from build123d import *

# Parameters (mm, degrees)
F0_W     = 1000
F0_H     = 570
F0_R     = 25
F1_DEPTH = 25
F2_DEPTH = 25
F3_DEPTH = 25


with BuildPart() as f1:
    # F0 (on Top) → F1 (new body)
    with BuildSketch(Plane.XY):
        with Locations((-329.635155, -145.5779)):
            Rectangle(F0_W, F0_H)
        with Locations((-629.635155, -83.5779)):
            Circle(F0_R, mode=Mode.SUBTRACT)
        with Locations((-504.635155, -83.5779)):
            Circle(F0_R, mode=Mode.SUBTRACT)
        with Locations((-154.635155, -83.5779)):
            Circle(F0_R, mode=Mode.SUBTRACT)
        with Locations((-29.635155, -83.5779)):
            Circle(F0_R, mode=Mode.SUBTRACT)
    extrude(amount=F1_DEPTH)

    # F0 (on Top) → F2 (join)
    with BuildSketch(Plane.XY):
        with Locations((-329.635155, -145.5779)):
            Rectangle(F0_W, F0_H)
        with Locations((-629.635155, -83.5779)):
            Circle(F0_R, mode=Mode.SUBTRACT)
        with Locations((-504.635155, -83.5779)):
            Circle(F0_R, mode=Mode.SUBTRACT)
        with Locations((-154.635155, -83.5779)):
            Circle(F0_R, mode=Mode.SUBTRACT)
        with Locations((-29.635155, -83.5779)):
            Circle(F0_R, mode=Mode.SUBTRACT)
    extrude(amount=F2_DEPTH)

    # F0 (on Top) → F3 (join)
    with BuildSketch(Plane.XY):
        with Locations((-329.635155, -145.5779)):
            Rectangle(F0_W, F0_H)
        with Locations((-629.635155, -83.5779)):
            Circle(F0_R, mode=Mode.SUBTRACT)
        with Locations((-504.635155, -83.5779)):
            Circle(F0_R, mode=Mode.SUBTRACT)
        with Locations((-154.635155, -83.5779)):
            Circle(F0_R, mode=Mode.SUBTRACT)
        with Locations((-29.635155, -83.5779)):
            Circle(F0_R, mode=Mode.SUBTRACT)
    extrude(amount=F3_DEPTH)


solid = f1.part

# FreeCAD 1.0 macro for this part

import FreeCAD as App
import Part
import Sketcher

V = App.Vector
Q = App.Units.Quantity


def add_polygon(sketch, points):
    """Adds a closed chain of lines whose ends are joined by coincident constraints."""
    first, n = sketch.GeometryCount, len(points)
    for a, b in zip(points, points[1:] + points[:1]):
        sketch.addGeometry(Part.LineSegment(App.Vector(*a, 0), App.Vector(*b, 0)), False)
    for i in range(n):
        sketch.addConstraint(Sketcher.Constraint("Coincident", first + i, 2, first + (i + 1) % n, 1))

doc = App.newDocument("Part")
params = doc.addObject("Spreadsheet::Sheet", "Params")
for row, (alias, value) in enumerate([
    ("sketch1_diameter", "50 mm"),
    ("sketch1_width", "1000 mm"),
    ("sketch1_height", "570 mm"),
    ("pad1_length", "25 mm"),
    ("sketch2_diameter", "50 mm"),
    ("sketch2_width", "1000 mm"),
    ("sketch2_height", "570 mm"),
    ("pad2_length", "25 mm"),
    ("sketch3_diameter", "50 mm"),
    ("sketch3_width", "1000 mm"),
    ("sketch3_height", "570 mm"),
    ("pad3_length", "25 mm"),
], start=1):
    params.set(f"A{row}", alias)
    params.set(f"B{row}", "=" + value)
    params.setAlias(f"B{row}", alias)

body = doc.addObject("PartDesign::Body", "Body")

sketch1 = body.newObject("Sketcher::SketchObject", "Sketch")
sketch1.AttachmentSupport = (doc.getObject("XY_Plane"), [""])
sketch1.MapMode = "FlatFace"
add_polygon(sketch1, [(-829.635155, 139.4221), (-829.635155, -430.5779), (170.364845, -430.5779), (170.364845, 139.4221)])
sketch1.addGeometry(Part.Circle(V(-629.635155, -83.5779, 0), V(0, 0, 1), 25), False)
sketch1.addGeometry(Part.Circle(V(-504.635155, -83.5779, 0), V(0, 0, 1), 25), False)
sketch1.addGeometry(Part.Circle(V(-154.635155, -83.5779, 0), V(0, 0, 1), 25), False)
sketch1.addGeometry(Part.Circle(V(-29.635155, -83.5779, 0), V(0, 0, 1), 25), False)
sketch1.addConstraint([
    Sketcher.Constraint("Vertical", 0),
    Sketcher.Constraint("Horizontal", 1),
    Sketcher.Constraint("Vertical", 2),
    Sketcher.Constraint("Horizontal", 3),
    Sketcher.Constraint("Equal", 4, 5),
    Sketcher.Constraint("Equal", 5, 6),
    Sketcher.Constraint("Equal", 6, 7),
    Sketcher.Constraint("Horizontal", 4, 3, 5, 3),
    Sketcher.Constraint("Horizontal", 5, 3, 6, 3),
    Sketcher.Constraint("Horizontal", 6, 3, 7, 3),
    Sketcher.Constraint("Diameter", 4, Q("50 mm")),
    Sketcher.Constraint("DistanceX", 1, 1, 1, 2, Q("1000 mm")),
    Sketcher.Constraint("DistanceY", 0, 2, 0, 1, Q("570 mm")),
    Sketcher.Constraint("DistanceX", 4, 3, 5, 3, Q("125 mm")),
    Sketcher.Constraint("DistanceX", 5, 3, 6, 3, Q("350 mm")),
    Sketcher.Constraint("DistanceX", 6, 3, 7, 3, Q("125 mm")),
    Sketcher.Constraint("DistanceX", 0, 2, 4, 3, Q("200 mm")),
    Sketcher.Constraint("DistanceY", 0, 2, 4, 3, Q("347 mm")),
    Sketcher.Constraint("DistanceY", 4, 3, -1, 1, Q("83.5779 mm")),
    Sketcher.Constraint("DistanceX", 4, 3, -1, 1, Q("629.635155 mm")),
])
sketch1.setExpression("Constraints[14]", "Params.sketch1_diameter")
sketch1.setExpression("Constraints[15]", "Params.sketch1_width")
sketch1.setExpression("Constraints[16]", "Params.sketch1_height")
pad1 = body.newObject("PartDesign::Pad", "Pad")
pad1.Profile = sketch1
pad1.setExpression("Length", "Params.pad1_length")

sketch2 = body.newObject("Sketcher::SketchObject", "Sketch001")
sketch2.AttachmentSupport = (doc.getObject("XY_Plane"), [""])
sketch2.MapMode = "FlatFace"
add_polygon(sketch2, [(-829.635155, 139.4221), (-829.635155, -430.5779), (170.364845, -430.5779), (170.364845, 139.4221)])
sketch2.addGeometry(Part.Circle(V(-629.635155, -83.5779, 0), V(0, 0, 1), 25), False)
sketch2.addGeometry(Part.Circle(V(-504.635155, -83.5779, 0), V(0, 0, 1), 25), False)
sketch2.addGeometry(Part.Circle(V(-154.635155, -83.5779, 0), V(0, 0, 1), 25), False)
sketch2.addGeometry(Part.Circle(V(-29.635155, -83.5779, 0), V(0, 0, 1), 25), False)
sketch2.addConstraint([
    Sketcher.Constraint("Vertical", 0),
    Sketcher.Constraint("Horizontal", 1),
    Sketcher.Constraint("Vertical", 2),
    Sketcher.Constraint("Horizontal", 3),
    Sketcher.Constraint("Equal", 4, 5),
    Sketcher.Constraint("Equal", 5, 6),
    Sketcher.Constraint("Equal", 6, 7),
    Sketcher.Constraint("Horizontal", 4, 3, 5, 3),
    Sketcher.Constraint("Horizontal", 5, 3, 6, 3),
    Sketcher.Constraint("Horizontal", 6, 3, 7, 3),
    Sketcher.Constraint("Diameter", 4, Q("50 mm")),
    Sketcher.Constraint("DistanceX", 1, 1, 1, 2, Q("1000 mm")),
    Sketcher.Constraint("DistanceY", 0, 2, 0, 1, Q("570 mm")),
    Sketcher.Constraint("DistanceX", 4, 3, 5, 3, Q("125 mm")),
    Sketcher.Constraint("DistanceX", 5, 3, 6, 3, Q("350 mm")),
    Sketcher.Constraint("DistanceX", 6, 3, 7, 3, Q("125 mm")),
    Sketcher.Constraint("DistanceX", 0, 2, 4, 3, Q("200 mm")),
    Sketcher.Constraint("DistanceY", 0, 2, 4, 3, Q("347 mm")),
    Sketcher.Constraint("DistanceY", 4, 3, -1, 1, Q("83.5779 mm")),
    Sketcher.Constraint("DistanceX", 4, 3, -1, 1, Q("629.635155 mm")),
])
sketch2.setExpression("Constraints[14]", "Params.sketch2_diameter")
sketch2.setExpression("Constraints[15]", "Params.sketch2_width")
sketch2.setExpression("Constraints[16]", "Params.sketch2_height")
pad2 = body.newObject("PartDesign::Pad", "Pad001")
pad2.Profile = sketch2
pad2.setExpression("Length", "Params.pad2_length")

sketch3 = body.newObject("Sketcher::SketchObject", "Sketch002")
sketch3.AttachmentSupport = (doc.getObject("XY_Plane"), [""])
sketch3.MapMode = "FlatFace"
add_polygon(sketch3, [(-829.635155, 139.4221), (-829.635155, -430.5779), (170.364845, -430.5779), (170.364845, 139.4221)])
sketch3.addGeometry(Part.Circle(V(-629.635155, -83.5779, 0), V(0, 0, 1), 25), False)
sketch3.addGeometry(Part.Circle(V(-504.635155, -83.5779, 0), V(0, 0, 1), 25), False)
sketch3.addGeometry(Part.Circle(V(-154.635155, -83.5779, 0), V(0, 0, 1), 25), False)
sketch3.addGeometry(Part.Circle(V(-29.635155, -83.5779, 0), V(0, 0, 1), 25), False)
sketch3.addConstraint([
    Sketcher.Constraint("Vertical", 0),
    Sketcher.Constraint("Horizontal", 1),
    Sketcher.Constraint("Vertical", 2),
    Sketcher.Constraint("Horizontal", 3),
    Sketcher.Constraint("Equal", 4, 5),
    Sketcher.Constraint("Equal", 5, 6),
    Sketcher.Constraint("Equal", 6, 7),
    Sketcher.Constraint("Horizontal", 4, 3, 5, 3),
    Sketcher.Constraint("Horizontal", 5, 3, 6, 3),
    Sketcher.Constraint("Horizontal", 6, 3, 7, 3),
    Sketcher.Constraint("Diameter", 4, Q("50 mm")),
    Sketcher.Constraint("DistanceX", 1, 1, 1, 2, Q("1000 mm")),
    Sketcher.Constraint("DistanceY", 0, 2, 0, 1, Q("570 mm")),
    Sketcher.Constraint("DistanceX", 4, 3, 5, 3, Q("125 mm")),
    Sketcher.Constraint("DistanceX", 5, 3, 6, 3, Q("350 mm")),
    Sketcher.Constraint("DistanceX", 6, 3, 7, 3, Q("125 mm")),
    Sketcher.Constraint("DistanceX", 0, 2, 4, 3, Q("200 mm")),
    Sketcher.Constraint("DistanceY", 0, 2, 4, 3, Q("347 mm")),
    Sketcher.Constraint("DistanceY", 4, 3, -1, 1, Q("83.5779 mm")),
    Sketcher.Constraint("DistanceX", 4, 3, -1, 1, Q("629.635155 mm")),
])
sketch3.setExpression("Constraints[14]", "Params.sketch3_diameter")
sketch3.setExpression("Constraints[15]", "Params.sketch3_width")
sketch3.setExpression("Constraints[16]", "Params.sketch3_height")
pad3 = body.newObject("PartDesign::Pad", "Pad002")
pad3.Profile = sketch3
pad3.setExpression("Length", "Params.pad3_length")

doc.recompute()
